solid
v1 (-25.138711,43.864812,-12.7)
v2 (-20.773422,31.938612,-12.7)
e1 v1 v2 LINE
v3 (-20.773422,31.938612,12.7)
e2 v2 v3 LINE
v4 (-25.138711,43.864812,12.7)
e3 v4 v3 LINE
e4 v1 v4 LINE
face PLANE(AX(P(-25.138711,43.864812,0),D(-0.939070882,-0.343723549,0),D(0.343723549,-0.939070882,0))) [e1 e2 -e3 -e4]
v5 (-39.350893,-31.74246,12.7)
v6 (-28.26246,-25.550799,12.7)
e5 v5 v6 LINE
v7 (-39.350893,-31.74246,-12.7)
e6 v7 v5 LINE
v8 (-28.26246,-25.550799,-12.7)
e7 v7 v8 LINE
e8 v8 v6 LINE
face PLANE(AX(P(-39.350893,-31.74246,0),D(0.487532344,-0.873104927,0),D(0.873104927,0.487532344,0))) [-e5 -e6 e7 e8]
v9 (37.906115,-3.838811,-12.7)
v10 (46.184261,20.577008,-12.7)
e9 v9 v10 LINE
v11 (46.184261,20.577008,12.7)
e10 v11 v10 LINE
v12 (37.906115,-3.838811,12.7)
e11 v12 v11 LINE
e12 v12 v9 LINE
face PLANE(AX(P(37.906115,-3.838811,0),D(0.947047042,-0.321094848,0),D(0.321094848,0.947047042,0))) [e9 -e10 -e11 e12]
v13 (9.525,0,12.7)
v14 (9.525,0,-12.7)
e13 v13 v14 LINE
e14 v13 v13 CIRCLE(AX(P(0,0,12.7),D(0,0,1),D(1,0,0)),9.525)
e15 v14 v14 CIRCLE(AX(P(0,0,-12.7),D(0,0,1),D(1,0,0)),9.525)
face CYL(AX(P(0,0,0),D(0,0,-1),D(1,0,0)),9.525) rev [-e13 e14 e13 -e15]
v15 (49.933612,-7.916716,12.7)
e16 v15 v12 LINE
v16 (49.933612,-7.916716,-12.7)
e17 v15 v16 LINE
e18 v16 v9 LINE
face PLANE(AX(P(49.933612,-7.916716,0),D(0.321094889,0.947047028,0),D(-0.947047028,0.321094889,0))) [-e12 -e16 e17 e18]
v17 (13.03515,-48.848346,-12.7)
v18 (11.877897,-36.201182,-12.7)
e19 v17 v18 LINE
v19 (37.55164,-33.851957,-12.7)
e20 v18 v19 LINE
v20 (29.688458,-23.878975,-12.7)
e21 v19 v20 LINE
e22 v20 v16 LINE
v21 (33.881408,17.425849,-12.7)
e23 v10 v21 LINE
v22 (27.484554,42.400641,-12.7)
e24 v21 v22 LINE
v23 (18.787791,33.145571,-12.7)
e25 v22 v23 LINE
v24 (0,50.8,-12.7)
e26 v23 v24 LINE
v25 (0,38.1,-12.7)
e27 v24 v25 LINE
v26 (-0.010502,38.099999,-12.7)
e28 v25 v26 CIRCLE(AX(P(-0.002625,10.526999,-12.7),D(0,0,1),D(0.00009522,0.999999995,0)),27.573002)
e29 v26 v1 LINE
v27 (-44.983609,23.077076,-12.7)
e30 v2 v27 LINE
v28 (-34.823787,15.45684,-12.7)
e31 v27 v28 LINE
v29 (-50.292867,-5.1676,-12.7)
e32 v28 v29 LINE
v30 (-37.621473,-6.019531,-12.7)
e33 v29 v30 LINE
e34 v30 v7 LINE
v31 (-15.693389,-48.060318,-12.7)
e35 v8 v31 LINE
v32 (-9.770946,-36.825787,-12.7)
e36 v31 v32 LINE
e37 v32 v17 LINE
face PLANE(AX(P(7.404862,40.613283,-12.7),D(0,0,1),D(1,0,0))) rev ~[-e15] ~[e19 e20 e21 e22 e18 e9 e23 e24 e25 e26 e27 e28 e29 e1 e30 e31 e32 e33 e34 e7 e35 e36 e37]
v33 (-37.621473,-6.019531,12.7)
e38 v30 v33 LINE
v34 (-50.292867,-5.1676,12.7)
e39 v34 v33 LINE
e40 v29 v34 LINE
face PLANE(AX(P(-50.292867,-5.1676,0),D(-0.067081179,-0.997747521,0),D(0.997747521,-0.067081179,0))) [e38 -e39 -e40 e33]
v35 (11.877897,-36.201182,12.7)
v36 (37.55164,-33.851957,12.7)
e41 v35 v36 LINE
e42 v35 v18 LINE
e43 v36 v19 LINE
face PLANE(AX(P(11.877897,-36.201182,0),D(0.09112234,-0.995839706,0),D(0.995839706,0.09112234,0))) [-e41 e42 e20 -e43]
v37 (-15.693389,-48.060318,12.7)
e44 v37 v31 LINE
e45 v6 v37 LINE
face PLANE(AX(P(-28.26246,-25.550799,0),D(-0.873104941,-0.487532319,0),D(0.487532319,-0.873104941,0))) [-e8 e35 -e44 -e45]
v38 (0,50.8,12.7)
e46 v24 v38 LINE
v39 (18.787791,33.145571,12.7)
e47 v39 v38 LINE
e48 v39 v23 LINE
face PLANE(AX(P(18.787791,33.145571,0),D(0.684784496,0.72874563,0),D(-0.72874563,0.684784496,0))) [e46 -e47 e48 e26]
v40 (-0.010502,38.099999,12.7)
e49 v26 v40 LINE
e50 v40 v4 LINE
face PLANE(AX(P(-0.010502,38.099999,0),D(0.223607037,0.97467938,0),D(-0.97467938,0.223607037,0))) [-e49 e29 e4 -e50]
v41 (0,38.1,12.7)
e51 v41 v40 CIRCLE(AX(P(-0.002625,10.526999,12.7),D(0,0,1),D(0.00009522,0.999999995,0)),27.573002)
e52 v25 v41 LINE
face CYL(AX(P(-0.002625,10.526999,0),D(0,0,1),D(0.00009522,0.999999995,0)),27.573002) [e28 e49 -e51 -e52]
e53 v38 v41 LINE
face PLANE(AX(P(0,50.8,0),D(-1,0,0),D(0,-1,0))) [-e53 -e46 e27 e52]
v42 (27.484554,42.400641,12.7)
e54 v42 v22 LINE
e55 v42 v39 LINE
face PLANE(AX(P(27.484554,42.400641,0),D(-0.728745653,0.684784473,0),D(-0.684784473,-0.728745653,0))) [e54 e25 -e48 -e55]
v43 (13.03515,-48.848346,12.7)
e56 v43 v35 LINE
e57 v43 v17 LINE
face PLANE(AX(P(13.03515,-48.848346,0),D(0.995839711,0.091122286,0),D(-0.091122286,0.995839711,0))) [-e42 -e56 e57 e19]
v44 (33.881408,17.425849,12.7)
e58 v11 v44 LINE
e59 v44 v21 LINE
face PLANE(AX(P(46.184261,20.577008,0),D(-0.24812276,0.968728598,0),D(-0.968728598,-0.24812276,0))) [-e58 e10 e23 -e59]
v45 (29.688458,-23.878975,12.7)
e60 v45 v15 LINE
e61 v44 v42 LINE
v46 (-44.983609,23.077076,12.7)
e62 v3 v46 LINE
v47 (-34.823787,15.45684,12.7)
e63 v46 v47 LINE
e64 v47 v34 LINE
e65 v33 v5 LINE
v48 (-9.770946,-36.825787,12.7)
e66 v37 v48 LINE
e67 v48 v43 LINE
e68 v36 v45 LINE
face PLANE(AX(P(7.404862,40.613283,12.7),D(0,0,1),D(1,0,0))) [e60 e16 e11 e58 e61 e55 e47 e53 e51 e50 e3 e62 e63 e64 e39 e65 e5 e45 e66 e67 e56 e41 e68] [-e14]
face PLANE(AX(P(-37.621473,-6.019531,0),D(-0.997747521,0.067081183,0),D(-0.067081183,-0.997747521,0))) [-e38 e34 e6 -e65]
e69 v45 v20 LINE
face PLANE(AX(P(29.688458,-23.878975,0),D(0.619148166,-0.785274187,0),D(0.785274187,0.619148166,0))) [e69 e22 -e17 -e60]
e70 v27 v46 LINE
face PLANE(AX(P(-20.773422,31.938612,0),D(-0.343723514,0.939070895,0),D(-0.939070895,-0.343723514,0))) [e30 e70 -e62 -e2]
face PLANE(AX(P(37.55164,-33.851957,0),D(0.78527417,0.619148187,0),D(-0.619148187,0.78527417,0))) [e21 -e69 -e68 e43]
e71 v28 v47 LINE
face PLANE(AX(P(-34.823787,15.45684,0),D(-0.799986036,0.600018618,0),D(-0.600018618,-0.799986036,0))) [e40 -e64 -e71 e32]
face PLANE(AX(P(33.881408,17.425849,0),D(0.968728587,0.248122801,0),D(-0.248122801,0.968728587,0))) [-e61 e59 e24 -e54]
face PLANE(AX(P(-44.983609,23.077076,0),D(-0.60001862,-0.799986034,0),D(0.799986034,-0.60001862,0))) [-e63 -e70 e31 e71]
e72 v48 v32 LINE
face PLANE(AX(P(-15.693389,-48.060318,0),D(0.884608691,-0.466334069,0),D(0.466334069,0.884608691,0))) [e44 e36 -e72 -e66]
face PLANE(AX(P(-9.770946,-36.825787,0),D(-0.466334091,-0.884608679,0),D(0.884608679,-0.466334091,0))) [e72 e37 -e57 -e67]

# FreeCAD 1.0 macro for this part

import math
import FreeCAD as App
import Part
import Sketcher
from FreeCAD import Vector
Q = App.Units.Quantity

doc = App.newDocument("Part")
params = doc.addObject("Spreadsheet::Sheet", "Params")
for row, (alias, value) in enumerate([
    ("sketch1_diameter", "0.75 in"),
    ("sketch1_height", "0.5 in"),
    ("sketch1_length", "0.5 in"),
    ("sketch1_length2", "0.5 in"),
    ("sketch1_length3", "0.5 in"),
    ("pad1_length", "1 in"),
], start=1):
    params.set(f"A{row}", alias)
    params.set(f"B{row}", "=" + value)
    params.setAlias(f"B{row}", alias)

body = doc.addObject("PartDesign::Body", "Body")

sketch1 = doc.addObject("Sketcher::SketchObject", "Sketch")
body.addObject(sketch1)
sketch1.AttachmentSupport = (doc.XY_Plane, [""])
sketch1.MapMode = "FlatFace"
sketch1.addGeometry(Part.LineSegment(Vector(18.787791, 33.145571, 0), Vector(0, 50.8, 0)), False)
sketch1.addGeometry(Part.LineSegment(Vector(0, 50.8, 0), Vector(0, 38.1, 0)), False)
sketch1.addGeometry(Part.ArcOfCircle(Part.Circle(Vector(-0.002625, 10.526999, 0), Vector(0, 0, 1), 27.573002), math.radians(89.994544), math.radians(90.016367)), False)
sketch1.addGeometry(Part.LineSegment(Vector(-0.010502, 38.099999, 0), Vector(-25.138711, 43.864812, 0)), False)
sketch1.addGeometry(Part.LineSegment(Vector(-25.138711, 43.864812, 0), Vector(-20.773422, 31.938612, 0)), False)
sketch1.addGeometry(Part.LineSegment(Vector(-20.773422, 31.938612, 0), Vector(-44.983609, 23.077076, 0)), False)
sketch1.addGeometry(Part.LineSegment(Vector(-44.983609, 23.077076, 0), Vector(-34.823787, 15.45684, 0)), False)
sketch1.addGeometry(Part.LineSegment(Vector(-34.823787, 15.45684, 0), Vector(-50.292867, -5.1676, 0)), False)
sketch1.addGeometry(Part.LineSegment(Vector(-50.292867, -5.1676, 0), Vector(-37.621473, -6.019531, 0)), False)
sketch1.addGeometry(Part.LineSegment(Vector(-37.621473, -6.019531, 0), Vector(-39.350893, -31.74246, 0)), False)
sketch1.addGeometry(Part.LineSegment(Vector(-39.350893, -31.74246, 0), Vector(-28.26246, -25.550799, 0)), False)
sketch1.addGeometry(Part.LineSegment(Vector(-28.26246, -25.550799, 0), Vector(-15.693389, -48.060318, 0)), False)
sketch1.addGeometry(Part.LineSegment(Vector(-15.693389, -48.060318, 0), Vector(-9.770946, -36.825787, 0)), False)
sketch1.addGeometry(Part.LineSegment(Vector(-9.770946, -36.825787, 0), Vector(13.03515, -48.848346, 0)), False)
sketch1.addGeometry(Part.LineSegment(Vector(13.03515, -48.848346, 0), Vector(11.877897, -36.201182, 0)), False)
sketch1.addGeometry(Part.LineSegment(Vector(11.877897, -36.201182, 0), Vector(37.55164, -33.851957, 0)), False)
sketch1.addGeometry(Part.LineSegment(Vector(37.55164, -33.851957, 0), Vector(29.688458, -23.878975, 0)), False)
sketch1.addGeometry(Part.LineSegment(Vector(29.688458, -23.878975, 0), Vector(49.933612, -7.916716, 0)), False)
sketch1.addGeometry(Part.LineSegment(Vector(49.933612, -7.916716, 0), Vector(37.906115, -3.838811, 0)), False)
sketch1.addGeometry(Part.LineSegment(Vector(37.906115, -3.838811, 0), Vector(46.184261, 20.577008, 0)), False)
sketch1.addGeometry(Part.LineSegment(Vector(46.184261, 20.577008, 0), Vector(33.881408, 17.425849, 0)), False)
sketch1.addGeometry(Part.LineSegment(Vector(33.881408, 17.425849, 0), Vector(27.484554, 42.400641, 0)), False)
sketch1.addGeometry(Part.LineSegment(Vector(27.484554, 42.400641, 0), Vector(18.787791, 33.145571, 0)), False)
sketch1.addGeometry(Part.Circle(Vector(0, 0, 0), Vector(0, 0, 1), 9.525), False)
sketch1.addConstraint(Sketcher.Constraint("Coincident", 0, 2, 1, 1))
sketch1.addConstraint(Sketcher.Constraint("Coincident", 1, 2, 2, 1))
sketch1.addConstraint(Sketcher.Constraint("Coincident", 2, 2, 3, 1))
sketch1.addConstraint(Sketcher.Constraint("Coincident", 3, 2, 4, 1))
sketch1.addConstraint(Sketcher.Constraint("Coincident", 4, 2, 5, 1))
sketch1.addConstraint(Sketcher.Constraint("Coincident", 5, 2, 6, 1))
sketch1.addConstraint(Sketcher.Constraint("Coincident", 6, 2, 7, 1))
sketch1.addConstraint(Sketcher.Constraint("Coincident", 7, 2, 8, 1))
sketch1.addConstraint(Sketcher.Constraint("Coincident", 8, 2, 9, 1))
sketch1.addConstraint(Sketcher.Constraint("Coincident", 9, 2, 10, 1))
sketch1.addConstraint(Sketcher.Constraint("Coincident", 10, 2, 11, 1))
sketch1.addConstraint(Sketcher.Constraint("Coincident", 11, 2, 12, 1))
sketch1.addConstraint(Sketcher.Constraint("Coincident", 12, 2, 13, 1))
sketch1.addConstraint(Sketcher.Constraint("Coincident", 13, 2, 14, 1))
sketch1.addConstraint(Sketcher.Constraint("Coincident", 14, 2, 15, 1))
sketch1.addConstraint(Sketcher.Constraint("Coincident", 15, 2, 16, 1))
sketch1.addConstraint(Sketcher.Constraint("Coincident", 16, 2, 17, 1))
sketch1.addConstraint(Sketcher.Constraint("Coincident", 17, 2, 18, 1))
sketch1.addConstraint(Sketcher.Constraint("Coincident", 18, 2, 19, 1))
sketch1.addConstraint(Sketcher.Constraint("Coincident", 19, 2, 20, 1))
sketch1.addConstraint(Sketcher.Constraint("Coincident", 20, 2, 21, 1))
sketch1.addConstraint(Sketcher.Constraint("Coincident", 21, 2, 22, 1))
sketch1.addConstraint(Sketcher.Constraint("Coincident", 22, 2, 0, 1))
sketch1.addConstraint(Sketcher.Constraint("Vertical", 1))
sketch1.addConstraint(Sketcher.Constraint("Coincident", 23, 3, -1, 1))
sketch1.addConstraint(Sketcher.Constraint("PointOnObject", 0, 2, -2))
sketch1.addConstraint(Sketcher.Constraint("Diameter", 23, Q("0.75 in")))
sketch1.addConstraint(Sketcher.Constraint("DistanceY", 1, 2, 1, 1, Q("0.5 in")))
sketch1.addConstraint(Sketcher.Constraint("DistanceY", -1, 1, 0, 2, Q("2 in")))
sketch1.addConstraint(Sketcher.Constraint("Distance", 4, Q("0.5 in")))
sketch1.addConstraint(Sketcher.Constraint("Distance", 6, Q("0.5 in")))
sketch1.addConstraint(Sketcher.Constraint("Distance", 8, Q("0.5 in")))
sketch1.addConstraint(Sketcher.Constraint("Distance", 10, Q("0.5 in")))
sketch1.addConstraint(Sketcher.Constraint("Distance", 12, Q("0.5 in")))
sketch1.addConstraint(Sketcher.Constraint("Distance", 14, Q("0.5 in")))
sketch1.addConstraint(Sketcher.Constraint("Distance", 16, Q("0.5 in")))
sketch1.addConstraint(Sketcher.Constraint("Distance", 18, Q("0.5 in")))
sketch1.addConstraint(Sketcher.Constraint("Distance", 20, Q("0.5 in")))
sketch1.addConstraint(Sketcher.Constraint("Distance", 22, Q("0.5 in")))
sketch1.addConstraint(Sketcher.Constraint("Radius", 2, Q("27.573002 mm")))
sketch1.addConstraint(Sketcher.Constraint("Distance", 0, Q("1.015 in")))
sketch1.addConstraint(Sketcher.Constraint("Distance", 3, Q("1.015 in")))
sketch1.addConstraint(Sketcher.Constraint("Distance", 5, Q("1.015 in")))
sketch1.addConstraint(Sketcher.Constraint("Distance", 7, Q("1.015 in")))
sketch1.addConstraint(Sketcher.Constraint("Distance", 9, Q("1.015 in")))
sketch1.addConstraint(Sketcher.Constraint("Distance", 11, Q("1.015 in")))
sketch1.addConstraint(Sketcher.Constraint("Distance", 13, Q("1.015 in")))
sketch1.addConstraint(Sketcher.Constraint("Distance", 15, Q("1.015 in")))
sketch1.addConstraint(Sketcher.Constraint("Distance", 17, Q("1.015 in")))
sketch1.addConstraint(Sketcher.Constraint("Distance", 19, Q("1.015 in")))
sketch1.addConstraint(Sketcher.Constraint("Distance", 21, Q("1.015 in")))
sketch1.addConstraint(Sketcher.Constraint("DistanceY", 17, 2, 19, 2, Q("1.1218002 in")))
sketch1.addConstraint(Sketcher.Constraint("DistanceX", 2, 2, -1, 1, Q("0.010502 mm")))
sketch1.addConstraint(Sketcher.Constraint("DistanceY", 7, 2, -1, 1, Q("5.1676 mm")))
sketch1.addConstraint(Sketcher.Constraint("DistanceY", 10, 2, -1, 1, Q("25.550799 mm")))
sketch1.addConstraint(Sketcher.Constraint("DistanceY", 4, 2, 3, 2, Q("11.9262 mm")))
sketch1.addConstraint(Sketcher.Constraint("DistanceX", 5, 2, 3, 2, Q("19.844898 mm")))
sketch1.addConstraint(Sketcher.Constraint("DistanceY", 9, 2, 6, 2, Q("47.1993 mm")))
sketch1.addConstraint(Sketcher.Constraint("DistanceX", 3, 2, -1, 1, Q("25.138711 mm")))
sketch1.addConstraint(Sketcher.Constraint("DistanceY", -1, 1, 6, 2, Q("15.45684 mm")))
sketch1.addConstraint(Sketcher.Constraint("DistanceY", 8, 2, -1, 1, Q("6.019531 mm")))
sketch1.addConstraint(Sketcher.Constraint("DistanceX", 11, 2, -1, 1, Q("15.693389 mm")))
sketch1.addConstraint(Sketcher.Constraint("DistanceX", -1, 1, 13, 2, Q("13.03515 mm")))
sketch1.addConstraint(Sketcher.Constraint("DistanceX", -1, 1, 15, 2, Q("37.55164 mm")))
sketch1.addConstraint(Sketcher.Constraint("DistanceX", -1, 1, 16, 2, Q("29.688458 mm")))
sketch1.addConstraint(Sketcher.Constraint("DistanceX", -1, 1, 17, 2, Q("49.933612 mm")))
sketch1.addConstraint(Sketcher.Constraint("DistanceY", 18, 2, -1, 1, Q("3.838811 mm")))
sketch1.addConstraint(Sketcher.Constraint("DistanceX", -1, 1, 19, 2, Q("46.184261 mm")))
sketch1.addConstraint(Sketcher.Constraint("DistanceY", -1, 1, 20, 2, Q("17.425849 mm")))
sketch1.addConstraint(Sketcher.Constraint("DistanceY", -1, 1, 21, 2, Q("42.400641 mm")))
sketch1.addConstraint(Sketcher.Constraint("DistanceX", 6, 2, 2, 3, Q("34.821162 mm")))
sketch1.addConstraint(Sketcher.Constraint("DistanceY", 11, 2, 12, 2, Q("11.234531 mm")))
sketch1.setExpression("Constraints[26]", "Params.sketch1_diameter")
sketch1.setExpression("Constraints[27]", "Params.sketch1_height")
sketch1.setExpression("Constraints[29]", "Params.sketch1_length")
sketch1.setExpression("Constraints[30]", "Params.sketch1_length2")
sketch1.setExpression("Constraints[31]", "Params.sketch1_length3")
pad1 = doc.addObject("PartDesign::Pad", "Pad")
body.addObject(pad1)
pad1.Profile = sketch1
pad1.setExpression("Length", "Params.pad1_length")
pad1.Midplane = True

doc.recompute()
